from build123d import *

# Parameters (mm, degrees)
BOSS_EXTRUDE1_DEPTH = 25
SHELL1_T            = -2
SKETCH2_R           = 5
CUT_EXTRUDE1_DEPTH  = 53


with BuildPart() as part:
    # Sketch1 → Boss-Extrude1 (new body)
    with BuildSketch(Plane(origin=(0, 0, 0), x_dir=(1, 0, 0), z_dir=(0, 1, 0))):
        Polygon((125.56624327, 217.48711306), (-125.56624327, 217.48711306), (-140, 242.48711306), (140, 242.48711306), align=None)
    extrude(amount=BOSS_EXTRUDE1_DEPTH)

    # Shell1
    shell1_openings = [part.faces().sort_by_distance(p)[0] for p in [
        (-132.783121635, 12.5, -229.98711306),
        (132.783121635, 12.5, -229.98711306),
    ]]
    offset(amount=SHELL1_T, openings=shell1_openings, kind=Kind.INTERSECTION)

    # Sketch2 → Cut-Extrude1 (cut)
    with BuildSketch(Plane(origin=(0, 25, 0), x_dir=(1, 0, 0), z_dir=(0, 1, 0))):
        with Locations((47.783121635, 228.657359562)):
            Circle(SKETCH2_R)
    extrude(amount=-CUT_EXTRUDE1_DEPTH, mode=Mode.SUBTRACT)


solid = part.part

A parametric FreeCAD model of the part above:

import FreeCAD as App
import Part
import Sketcher
Q = App.Units.Quantity


def faces_at(feature, points):
    """Names of the faces that lie closest to the given points."""
    faces = feature.Shape.Faces
    near = lambda p: min(range(len(faces)), key=lambda i: faces[i].distToShape(Part.Vertex(*p))[0])
    return sorted({f"Face{near(p) + 1}" for p in points})

doc = App.newDocument("Part")
body = doc.addObject("PartDesign::Body", "Body")

# Sketch on XZ plane
sketch1 = body.newObject("Sketcher::SketchObject", "Sketch")
sketch1.AttachmentSupport = (doc.getObject("XZ_Plane"), [""])
sketch1.MapMode = "FlatFace"
sketch1.addGeometry(Part.LineSegment(App.Vector(-125.566243, -217.487113, 0), App.Vector(125.566243, -217.487113, 0)), False)
sketch1.addGeometry(Part.LineSegment(App.Vector(125.566243, -217.487113, 0), App.Vector(140, -242.487113, 0)), False)
sketch1.addGeometry(Part.LineSegment(App.Vector(140, -242.487113, 0), App.Vector(-140, -242.487113, 0)), False)
sketch1.addGeometry(Part.LineSegment(App.Vector(-140, -242.487113, 0), App.Vector(-125.566243, -217.487113, 0)), False)
sketch1.addConstraint(Sketcher.Constraint("Coincident", 0, 2, 1, 1))
sketch1.addConstraint(Sketcher.Constraint("Coincident", 1, 2, 2, 1))
sketch1.addConstraint(Sketcher.Constraint("Coincident", 2, 2, 3, 1))
sketch1.addConstraint(Sketcher.Constraint("Coincident", 3, 2, 0, 1))
sketch1.addConstraint(Sketcher.Constraint("Horizontal", 0))
sketch1.addConstraint(Sketcher.Constraint("Horizontal", 2))
sketch1.addConstraint(Sketcher.Constraint("Equal", 1, 3))
sketch1.addConstraint(Sketcher.Constraint("DistanceX", 2, 2, 2, 1, 280.0))
sketch1.addConstraint(Sketcher.Constraint("Angle", 1, Q("-60 deg")))
sketch1.addConstraint(Sketcher.Constraint("DistanceX", -1, 1, 1, 2, 140.0))
sketch1.addConstraint(Sketcher.Constraint("DistanceY", 1, 2, 0, 2, 25.0))
sketch1.addConstraint(Sketcher.Constraint("DistanceY", 0, 2, -1, 1, 217.487113))
pad1 = body.newObject("PartDesign::Pad", "Pad")
pad1.Profile = sketch1
pad1.Length = 25
pad1.Reversed = True
doc.recompute()

thickness = body.newObject("PartDesign::Thickness", "Thickness")
thickness.Base = (pad1, faces_at(pad1, [(-132.783, 12.5, -229.987), (132.783, 12.5, -229.987)]))
thickness.Value = 2
thickness.Reversed = True
thickness.Join = "Intersection"

# Sketch on XZ plane
sketch2 = body.newObject("Sketcher::SketchObject", "Sketch001")
sketch2.AttachmentSupport = (doc.getObject("XZ_Plane"), [""])
sketch2.MapMode = "FlatFace"
sketch2.AttachmentOffset = App.Placement(App.Vector(0, 0, -25), App.Rotation())
sketch2.addGeometry(Part.Circle(App.Vector(47.783122, -228.65736, 0), App.Vector(0, 0, 1), 5), False)
sketch2.addConstraint(Sketcher.Constraint("Diameter", 0, 10.0))
sketch2.addConstraint(Sketcher.Constraint("DistanceX", -1, 1, 0, 3, 47.783122))
sketch2.addConstraint(Sketcher.Constraint("DistanceY", 0, 3, -1, 1, 228.65736))
pocket1 = body.newObject("PartDesign::Pocket", "Pocket")
pocket1.Profile = sketch2
pocket1.Length = 53
pocket1.Reversed = True

doc.recompute()
